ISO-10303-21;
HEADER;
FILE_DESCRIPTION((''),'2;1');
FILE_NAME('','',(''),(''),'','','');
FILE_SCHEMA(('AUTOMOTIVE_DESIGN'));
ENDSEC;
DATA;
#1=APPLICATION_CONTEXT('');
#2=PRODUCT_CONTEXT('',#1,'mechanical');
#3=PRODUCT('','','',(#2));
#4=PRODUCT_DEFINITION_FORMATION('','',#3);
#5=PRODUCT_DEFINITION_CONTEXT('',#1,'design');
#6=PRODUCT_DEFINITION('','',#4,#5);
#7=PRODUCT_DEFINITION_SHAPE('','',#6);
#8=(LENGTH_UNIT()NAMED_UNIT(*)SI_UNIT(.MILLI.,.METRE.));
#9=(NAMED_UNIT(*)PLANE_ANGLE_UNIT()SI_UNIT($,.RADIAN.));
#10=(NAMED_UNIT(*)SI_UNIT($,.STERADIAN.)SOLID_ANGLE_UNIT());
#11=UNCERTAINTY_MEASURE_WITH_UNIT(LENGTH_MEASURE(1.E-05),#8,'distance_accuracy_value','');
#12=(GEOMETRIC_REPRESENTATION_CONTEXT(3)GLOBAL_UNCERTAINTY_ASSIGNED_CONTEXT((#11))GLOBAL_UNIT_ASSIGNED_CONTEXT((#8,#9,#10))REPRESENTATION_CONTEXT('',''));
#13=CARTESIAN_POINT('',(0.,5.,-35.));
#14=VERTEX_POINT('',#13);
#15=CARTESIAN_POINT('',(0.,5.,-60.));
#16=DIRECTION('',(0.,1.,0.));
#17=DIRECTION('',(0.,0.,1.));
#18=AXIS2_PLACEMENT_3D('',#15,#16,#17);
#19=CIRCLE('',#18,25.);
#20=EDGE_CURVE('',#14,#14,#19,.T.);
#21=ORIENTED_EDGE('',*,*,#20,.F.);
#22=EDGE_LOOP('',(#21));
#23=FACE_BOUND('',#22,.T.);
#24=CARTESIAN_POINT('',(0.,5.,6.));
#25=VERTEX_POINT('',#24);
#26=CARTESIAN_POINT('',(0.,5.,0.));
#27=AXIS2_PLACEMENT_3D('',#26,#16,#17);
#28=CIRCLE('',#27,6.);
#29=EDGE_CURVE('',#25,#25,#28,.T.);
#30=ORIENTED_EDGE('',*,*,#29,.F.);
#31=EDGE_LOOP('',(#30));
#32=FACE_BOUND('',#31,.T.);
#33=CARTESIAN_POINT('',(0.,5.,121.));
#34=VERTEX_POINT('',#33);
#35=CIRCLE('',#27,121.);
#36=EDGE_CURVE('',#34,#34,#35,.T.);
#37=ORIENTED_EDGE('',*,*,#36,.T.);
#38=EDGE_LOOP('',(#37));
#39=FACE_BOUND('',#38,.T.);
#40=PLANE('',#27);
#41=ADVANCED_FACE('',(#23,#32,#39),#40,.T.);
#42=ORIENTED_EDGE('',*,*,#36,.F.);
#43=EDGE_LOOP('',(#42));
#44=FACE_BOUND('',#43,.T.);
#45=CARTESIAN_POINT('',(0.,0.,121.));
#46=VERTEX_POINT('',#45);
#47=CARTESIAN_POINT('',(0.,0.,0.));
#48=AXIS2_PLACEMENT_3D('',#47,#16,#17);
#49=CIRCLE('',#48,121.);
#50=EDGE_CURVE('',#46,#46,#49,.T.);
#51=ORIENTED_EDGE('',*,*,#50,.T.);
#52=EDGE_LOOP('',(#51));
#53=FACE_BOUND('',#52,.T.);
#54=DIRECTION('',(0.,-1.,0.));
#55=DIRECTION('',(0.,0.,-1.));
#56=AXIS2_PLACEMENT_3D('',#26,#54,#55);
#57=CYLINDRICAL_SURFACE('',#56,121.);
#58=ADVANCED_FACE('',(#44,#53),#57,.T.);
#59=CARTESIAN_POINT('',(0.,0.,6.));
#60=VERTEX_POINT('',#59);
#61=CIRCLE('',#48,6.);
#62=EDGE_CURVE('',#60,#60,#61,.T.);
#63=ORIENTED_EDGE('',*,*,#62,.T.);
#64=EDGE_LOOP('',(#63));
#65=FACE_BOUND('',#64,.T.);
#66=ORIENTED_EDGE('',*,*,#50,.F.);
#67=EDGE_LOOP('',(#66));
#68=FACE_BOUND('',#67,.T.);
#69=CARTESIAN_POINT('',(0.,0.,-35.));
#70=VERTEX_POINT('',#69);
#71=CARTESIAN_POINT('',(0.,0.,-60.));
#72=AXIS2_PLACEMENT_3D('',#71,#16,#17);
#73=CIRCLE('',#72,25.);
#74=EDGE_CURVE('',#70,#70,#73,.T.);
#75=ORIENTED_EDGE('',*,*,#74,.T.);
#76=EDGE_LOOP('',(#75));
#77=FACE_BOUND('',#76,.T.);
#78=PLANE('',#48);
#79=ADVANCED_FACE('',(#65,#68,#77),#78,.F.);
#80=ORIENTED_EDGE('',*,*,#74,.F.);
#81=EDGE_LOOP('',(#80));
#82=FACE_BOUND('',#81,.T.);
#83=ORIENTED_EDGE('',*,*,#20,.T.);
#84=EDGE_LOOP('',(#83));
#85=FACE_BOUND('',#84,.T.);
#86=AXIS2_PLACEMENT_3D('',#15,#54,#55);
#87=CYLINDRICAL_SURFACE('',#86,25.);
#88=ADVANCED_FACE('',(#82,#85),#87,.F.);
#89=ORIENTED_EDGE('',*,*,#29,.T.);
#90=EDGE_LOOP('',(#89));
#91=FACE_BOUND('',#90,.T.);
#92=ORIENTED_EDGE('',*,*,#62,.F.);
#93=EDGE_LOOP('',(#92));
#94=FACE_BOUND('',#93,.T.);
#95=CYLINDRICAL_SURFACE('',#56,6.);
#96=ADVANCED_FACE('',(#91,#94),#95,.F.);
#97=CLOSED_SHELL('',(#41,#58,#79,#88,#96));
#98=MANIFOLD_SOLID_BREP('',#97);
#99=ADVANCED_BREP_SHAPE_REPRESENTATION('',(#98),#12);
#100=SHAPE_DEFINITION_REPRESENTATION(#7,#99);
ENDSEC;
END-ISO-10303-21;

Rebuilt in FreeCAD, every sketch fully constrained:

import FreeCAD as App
import Part
import Sketcher

doc = App.newDocument("Part")
body = doc.addObject("PartDesign::Body", "Body")

sketch1 = body.newObject("Sketcher::SketchObject", "Sketch")
sketch1.AttachmentSupport = (doc.getObject("XZ_Plane"), [""])
sketch1.MapMode = "FlatFace"
sketch1.addGeometry(Part.Circle(App.Vector(0, 0, 0), App.Vector(0, 0, 1), 121), False)
sketch1.addGeometry(Part.Circle(App.Vector(0, -60, 0), App.Vector(0, 0, 1), 25), False)
sketch1.addGeometry(Part.Circle(App.Vector(0, 0, 0), App.Vector(0, 0, 1), 6), False)
sketch1.addConstraint(Sketcher.Constraint("Coincident", 0, 3, -1, 1))
sketch1.addConstraint(Sketcher.Constraint("Coincident", 2, 3, -1, 1))
sketch1.addConstraint(Sketcher.Constraint("PointOnObject", 1, 3, -2))
sketch1.addConstraint(Sketcher.Constraint("Diameter", 0, 242.0))
sketch1.addConstraint(Sketcher.Constraint("Diameter", 1, 50.0))
sketch1.addConstraint(Sketcher.Constraint("Diameter", 2, 12.0))
sketch1.addConstraint(Sketcher.Constraint("DistanceY", 1, 3, -1, 1, 60.0))
pad1 = body.newObject("PartDesign::Pad", "Pad")
pad1.Profile = sketch1
pad1.Length = 5
pad1.Reversed = True

doc.recompute()
